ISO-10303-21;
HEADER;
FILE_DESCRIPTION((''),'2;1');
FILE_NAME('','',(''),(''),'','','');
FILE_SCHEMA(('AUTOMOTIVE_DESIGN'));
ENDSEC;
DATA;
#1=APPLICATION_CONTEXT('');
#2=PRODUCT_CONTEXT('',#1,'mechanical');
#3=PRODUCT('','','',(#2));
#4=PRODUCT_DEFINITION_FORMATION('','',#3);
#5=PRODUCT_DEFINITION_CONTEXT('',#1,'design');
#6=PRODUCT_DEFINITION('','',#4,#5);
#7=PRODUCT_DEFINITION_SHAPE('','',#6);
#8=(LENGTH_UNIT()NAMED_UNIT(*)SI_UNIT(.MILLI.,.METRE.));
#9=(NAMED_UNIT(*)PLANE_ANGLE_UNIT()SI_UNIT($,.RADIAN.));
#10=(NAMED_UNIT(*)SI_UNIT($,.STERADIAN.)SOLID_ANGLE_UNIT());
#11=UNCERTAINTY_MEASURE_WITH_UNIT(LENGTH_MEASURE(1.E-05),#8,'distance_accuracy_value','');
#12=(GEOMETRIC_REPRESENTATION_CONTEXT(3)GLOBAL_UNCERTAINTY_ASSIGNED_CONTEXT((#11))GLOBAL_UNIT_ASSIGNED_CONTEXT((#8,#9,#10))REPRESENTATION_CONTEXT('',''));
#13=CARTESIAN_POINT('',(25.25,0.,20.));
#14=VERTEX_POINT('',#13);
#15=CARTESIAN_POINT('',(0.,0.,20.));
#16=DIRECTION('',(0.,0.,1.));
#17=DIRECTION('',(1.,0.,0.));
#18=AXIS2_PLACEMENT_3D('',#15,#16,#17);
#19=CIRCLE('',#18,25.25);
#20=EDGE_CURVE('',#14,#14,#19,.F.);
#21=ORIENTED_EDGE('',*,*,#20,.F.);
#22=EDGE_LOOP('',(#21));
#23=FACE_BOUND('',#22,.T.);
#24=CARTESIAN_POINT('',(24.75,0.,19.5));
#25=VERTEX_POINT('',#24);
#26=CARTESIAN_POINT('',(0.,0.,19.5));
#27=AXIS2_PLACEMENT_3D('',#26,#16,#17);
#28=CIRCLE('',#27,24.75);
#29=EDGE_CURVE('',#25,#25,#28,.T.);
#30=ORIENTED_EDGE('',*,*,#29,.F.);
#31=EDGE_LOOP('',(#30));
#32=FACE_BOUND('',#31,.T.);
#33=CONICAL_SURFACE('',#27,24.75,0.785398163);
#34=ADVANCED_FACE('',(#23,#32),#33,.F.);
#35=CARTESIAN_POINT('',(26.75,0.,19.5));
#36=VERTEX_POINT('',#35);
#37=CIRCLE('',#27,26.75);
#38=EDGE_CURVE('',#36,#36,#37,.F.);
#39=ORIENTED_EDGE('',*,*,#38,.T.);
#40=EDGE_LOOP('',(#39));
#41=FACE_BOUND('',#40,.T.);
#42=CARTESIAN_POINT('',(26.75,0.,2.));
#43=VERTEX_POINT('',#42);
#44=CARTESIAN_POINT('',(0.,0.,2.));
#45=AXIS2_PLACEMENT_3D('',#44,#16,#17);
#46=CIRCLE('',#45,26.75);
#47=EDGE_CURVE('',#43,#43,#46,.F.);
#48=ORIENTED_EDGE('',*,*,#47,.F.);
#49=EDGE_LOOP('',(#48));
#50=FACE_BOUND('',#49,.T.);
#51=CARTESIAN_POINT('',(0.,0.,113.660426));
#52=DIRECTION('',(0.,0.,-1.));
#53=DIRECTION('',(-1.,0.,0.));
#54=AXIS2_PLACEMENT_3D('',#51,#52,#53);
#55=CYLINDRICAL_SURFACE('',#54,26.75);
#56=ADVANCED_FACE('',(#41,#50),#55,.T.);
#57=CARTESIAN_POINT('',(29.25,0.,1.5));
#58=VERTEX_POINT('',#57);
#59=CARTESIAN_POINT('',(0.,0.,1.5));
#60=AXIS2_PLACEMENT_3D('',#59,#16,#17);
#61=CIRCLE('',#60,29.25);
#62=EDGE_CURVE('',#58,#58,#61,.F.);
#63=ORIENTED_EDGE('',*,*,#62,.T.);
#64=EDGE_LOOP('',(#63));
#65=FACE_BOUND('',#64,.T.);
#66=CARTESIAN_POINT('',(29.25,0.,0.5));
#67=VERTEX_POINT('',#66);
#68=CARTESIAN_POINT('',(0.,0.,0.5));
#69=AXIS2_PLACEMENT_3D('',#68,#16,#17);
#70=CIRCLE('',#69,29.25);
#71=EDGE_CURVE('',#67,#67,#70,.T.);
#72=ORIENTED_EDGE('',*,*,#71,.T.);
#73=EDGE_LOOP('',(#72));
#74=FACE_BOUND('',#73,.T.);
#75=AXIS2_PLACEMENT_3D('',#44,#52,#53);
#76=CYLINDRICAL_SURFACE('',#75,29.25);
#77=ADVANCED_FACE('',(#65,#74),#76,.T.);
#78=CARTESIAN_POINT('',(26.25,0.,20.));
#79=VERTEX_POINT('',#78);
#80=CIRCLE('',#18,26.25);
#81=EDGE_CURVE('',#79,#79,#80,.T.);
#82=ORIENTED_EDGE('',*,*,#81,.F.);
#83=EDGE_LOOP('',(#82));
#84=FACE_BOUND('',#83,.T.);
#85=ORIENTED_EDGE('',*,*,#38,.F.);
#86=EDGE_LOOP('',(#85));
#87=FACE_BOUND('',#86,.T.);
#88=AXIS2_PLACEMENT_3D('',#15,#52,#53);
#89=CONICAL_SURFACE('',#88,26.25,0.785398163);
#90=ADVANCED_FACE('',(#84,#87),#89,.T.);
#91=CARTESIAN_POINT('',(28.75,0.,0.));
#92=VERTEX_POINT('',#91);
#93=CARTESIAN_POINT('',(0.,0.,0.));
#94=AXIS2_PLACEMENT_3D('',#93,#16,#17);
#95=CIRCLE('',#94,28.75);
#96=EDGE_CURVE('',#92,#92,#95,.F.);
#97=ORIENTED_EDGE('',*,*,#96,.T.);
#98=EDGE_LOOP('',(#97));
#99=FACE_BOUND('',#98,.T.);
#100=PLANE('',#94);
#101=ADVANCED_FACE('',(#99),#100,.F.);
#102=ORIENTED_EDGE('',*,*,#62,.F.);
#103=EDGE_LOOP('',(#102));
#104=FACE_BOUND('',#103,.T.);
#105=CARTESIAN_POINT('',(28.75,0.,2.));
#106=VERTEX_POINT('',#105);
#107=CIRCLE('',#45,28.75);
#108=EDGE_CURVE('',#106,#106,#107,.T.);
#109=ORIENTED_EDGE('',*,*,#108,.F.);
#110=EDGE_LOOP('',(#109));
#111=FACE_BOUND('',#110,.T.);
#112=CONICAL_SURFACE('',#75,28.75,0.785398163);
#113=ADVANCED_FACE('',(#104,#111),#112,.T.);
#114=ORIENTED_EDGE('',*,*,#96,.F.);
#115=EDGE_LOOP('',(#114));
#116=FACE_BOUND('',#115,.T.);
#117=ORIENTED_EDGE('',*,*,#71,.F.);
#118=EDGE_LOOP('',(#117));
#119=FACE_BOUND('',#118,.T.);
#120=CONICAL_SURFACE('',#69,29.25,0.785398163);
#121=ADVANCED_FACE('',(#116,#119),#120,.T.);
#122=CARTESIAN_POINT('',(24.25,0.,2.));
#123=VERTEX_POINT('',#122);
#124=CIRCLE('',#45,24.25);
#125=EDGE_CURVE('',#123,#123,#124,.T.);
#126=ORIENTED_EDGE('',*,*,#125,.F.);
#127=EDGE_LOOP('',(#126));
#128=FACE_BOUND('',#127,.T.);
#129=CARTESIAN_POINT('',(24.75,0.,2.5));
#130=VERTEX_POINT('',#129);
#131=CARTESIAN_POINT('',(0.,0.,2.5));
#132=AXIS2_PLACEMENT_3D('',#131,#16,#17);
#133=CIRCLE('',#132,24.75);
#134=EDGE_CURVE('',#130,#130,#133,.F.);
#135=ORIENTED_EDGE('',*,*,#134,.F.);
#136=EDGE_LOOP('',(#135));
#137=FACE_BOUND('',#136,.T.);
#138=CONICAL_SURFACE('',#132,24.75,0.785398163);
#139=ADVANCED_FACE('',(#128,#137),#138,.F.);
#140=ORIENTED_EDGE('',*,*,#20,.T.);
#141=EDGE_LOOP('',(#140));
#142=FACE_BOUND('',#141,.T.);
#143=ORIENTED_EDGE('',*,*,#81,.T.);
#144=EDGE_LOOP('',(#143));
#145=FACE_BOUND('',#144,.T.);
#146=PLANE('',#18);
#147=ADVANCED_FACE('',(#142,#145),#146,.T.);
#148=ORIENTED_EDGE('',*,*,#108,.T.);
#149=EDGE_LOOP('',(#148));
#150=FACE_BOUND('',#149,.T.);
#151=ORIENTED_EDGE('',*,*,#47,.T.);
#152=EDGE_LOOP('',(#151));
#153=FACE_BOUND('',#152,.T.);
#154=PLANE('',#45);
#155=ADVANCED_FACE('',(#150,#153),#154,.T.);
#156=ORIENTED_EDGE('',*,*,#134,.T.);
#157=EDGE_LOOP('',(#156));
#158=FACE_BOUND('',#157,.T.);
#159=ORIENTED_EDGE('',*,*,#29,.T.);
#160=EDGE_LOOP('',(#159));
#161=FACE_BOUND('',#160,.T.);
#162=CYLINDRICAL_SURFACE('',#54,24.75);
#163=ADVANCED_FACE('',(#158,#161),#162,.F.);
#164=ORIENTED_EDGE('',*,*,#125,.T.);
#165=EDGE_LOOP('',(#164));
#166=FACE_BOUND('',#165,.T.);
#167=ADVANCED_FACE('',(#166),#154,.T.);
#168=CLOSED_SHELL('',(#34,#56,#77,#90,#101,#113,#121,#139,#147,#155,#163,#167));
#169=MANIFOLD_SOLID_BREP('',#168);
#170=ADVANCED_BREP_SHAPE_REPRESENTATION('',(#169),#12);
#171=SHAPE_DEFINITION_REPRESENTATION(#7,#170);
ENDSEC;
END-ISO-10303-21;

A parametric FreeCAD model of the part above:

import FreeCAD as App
import Part
import Sketcher


def edges_at(feature, points):
    """Names of the edges that pass closest to the given points."""
    edges = feature.Shape.Edges
    near = lambda p: min(range(len(edges)), key=lambda i: edges[i].distToShape(Part.Vertex(*p))[0])
    return sorted({f"Edge{near(p) + 1}" for p in points})

doc = App.newDocument("Part")
body = doc.addObject("PartDesign::Body", "Body")
body.AllowCompound = True

# Sketch on XY plane
sketch1 = body.newObject("Sketcher::SketchObject", "Sketch")
sketch1.AttachmentSupport = (doc.getObject("XY_Plane"), [""])
sketch1.MapMode = "FlatFace"
sketch1.addGeometry([
    Part.Circle(App.Vector(0, 0, 0), App.Vector(0, 0, 1), 29),
    Part.Circle(App.Vector(0, 0, 0), App.Vector(0, 0, 1), 27),
    Part.Circle(App.Vector(0, 0, 0), App.Vector(0, 0, 1), 25),
], False)
sketch1.addConstraint([
    Sketcher.Constraint("Coincident", 0, 3, -1, 1),
    Sketcher.Constraint("Coincident", 1, 3, -1, 1),
    Sketcher.Constraint("Coincident", 2, 3, -1, 1),
    Sketcher.Constraint("Diameter", 0, 58.5),
    Sketcher.Constraint("Diameter", 1, 53.5),
    Sketcher.Constraint("Diameter", 2, 49.5),
])
pad1 = body.newObject("PartDesign::Pad", "Pad")
pad1.Profile = sketch1
pad1.Length = 2

# Sketch on XY plane
sketch2 = body.newObject("Sketcher::SketchObject", "Sketch001")
sketch2.AttachmentSupport = (doc.getObject("XY_Plane"), [""])
sketch2.MapMode = "FlatFace"
sketch2.addGeometry([
    Part.Circle(App.Vector(0, 0, 0), App.Vector(0, 0, 1), 27),
    Part.Circle(App.Vector(0, 0, 0), App.Vector(0, 0, 1), 25),
], False)
sketch2.addConstraint([
    Sketcher.Constraint("Coincident", 0, 3, -1, 1),
    Sketcher.Constraint("Coincident", 1, 3, -1, 1),
    Sketcher.Constraint("Diameter", 0, 53.5),
    Sketcher.Constraint("Diameter", 1, 49.5),
])
pad2 = body.newObject("PartDesign::Pad", "Pad001")
pad2.Profile = sketch2
pad2.Length = 20
doc.recompute()

chamfer = body.newObject("PartDesign::Chamfer", "Chamfer")
chamfer.Base = (pad2, edges_at(pad2, [
    (-26.75, 0, 20),
    (-29.25, 0, 0),
    (-29.25, 0, 2),
    (-24.75, 0, 2),
    (-24.75, 0, 20),
]))
chamfer.Size = 0.5

doc.recompute()
